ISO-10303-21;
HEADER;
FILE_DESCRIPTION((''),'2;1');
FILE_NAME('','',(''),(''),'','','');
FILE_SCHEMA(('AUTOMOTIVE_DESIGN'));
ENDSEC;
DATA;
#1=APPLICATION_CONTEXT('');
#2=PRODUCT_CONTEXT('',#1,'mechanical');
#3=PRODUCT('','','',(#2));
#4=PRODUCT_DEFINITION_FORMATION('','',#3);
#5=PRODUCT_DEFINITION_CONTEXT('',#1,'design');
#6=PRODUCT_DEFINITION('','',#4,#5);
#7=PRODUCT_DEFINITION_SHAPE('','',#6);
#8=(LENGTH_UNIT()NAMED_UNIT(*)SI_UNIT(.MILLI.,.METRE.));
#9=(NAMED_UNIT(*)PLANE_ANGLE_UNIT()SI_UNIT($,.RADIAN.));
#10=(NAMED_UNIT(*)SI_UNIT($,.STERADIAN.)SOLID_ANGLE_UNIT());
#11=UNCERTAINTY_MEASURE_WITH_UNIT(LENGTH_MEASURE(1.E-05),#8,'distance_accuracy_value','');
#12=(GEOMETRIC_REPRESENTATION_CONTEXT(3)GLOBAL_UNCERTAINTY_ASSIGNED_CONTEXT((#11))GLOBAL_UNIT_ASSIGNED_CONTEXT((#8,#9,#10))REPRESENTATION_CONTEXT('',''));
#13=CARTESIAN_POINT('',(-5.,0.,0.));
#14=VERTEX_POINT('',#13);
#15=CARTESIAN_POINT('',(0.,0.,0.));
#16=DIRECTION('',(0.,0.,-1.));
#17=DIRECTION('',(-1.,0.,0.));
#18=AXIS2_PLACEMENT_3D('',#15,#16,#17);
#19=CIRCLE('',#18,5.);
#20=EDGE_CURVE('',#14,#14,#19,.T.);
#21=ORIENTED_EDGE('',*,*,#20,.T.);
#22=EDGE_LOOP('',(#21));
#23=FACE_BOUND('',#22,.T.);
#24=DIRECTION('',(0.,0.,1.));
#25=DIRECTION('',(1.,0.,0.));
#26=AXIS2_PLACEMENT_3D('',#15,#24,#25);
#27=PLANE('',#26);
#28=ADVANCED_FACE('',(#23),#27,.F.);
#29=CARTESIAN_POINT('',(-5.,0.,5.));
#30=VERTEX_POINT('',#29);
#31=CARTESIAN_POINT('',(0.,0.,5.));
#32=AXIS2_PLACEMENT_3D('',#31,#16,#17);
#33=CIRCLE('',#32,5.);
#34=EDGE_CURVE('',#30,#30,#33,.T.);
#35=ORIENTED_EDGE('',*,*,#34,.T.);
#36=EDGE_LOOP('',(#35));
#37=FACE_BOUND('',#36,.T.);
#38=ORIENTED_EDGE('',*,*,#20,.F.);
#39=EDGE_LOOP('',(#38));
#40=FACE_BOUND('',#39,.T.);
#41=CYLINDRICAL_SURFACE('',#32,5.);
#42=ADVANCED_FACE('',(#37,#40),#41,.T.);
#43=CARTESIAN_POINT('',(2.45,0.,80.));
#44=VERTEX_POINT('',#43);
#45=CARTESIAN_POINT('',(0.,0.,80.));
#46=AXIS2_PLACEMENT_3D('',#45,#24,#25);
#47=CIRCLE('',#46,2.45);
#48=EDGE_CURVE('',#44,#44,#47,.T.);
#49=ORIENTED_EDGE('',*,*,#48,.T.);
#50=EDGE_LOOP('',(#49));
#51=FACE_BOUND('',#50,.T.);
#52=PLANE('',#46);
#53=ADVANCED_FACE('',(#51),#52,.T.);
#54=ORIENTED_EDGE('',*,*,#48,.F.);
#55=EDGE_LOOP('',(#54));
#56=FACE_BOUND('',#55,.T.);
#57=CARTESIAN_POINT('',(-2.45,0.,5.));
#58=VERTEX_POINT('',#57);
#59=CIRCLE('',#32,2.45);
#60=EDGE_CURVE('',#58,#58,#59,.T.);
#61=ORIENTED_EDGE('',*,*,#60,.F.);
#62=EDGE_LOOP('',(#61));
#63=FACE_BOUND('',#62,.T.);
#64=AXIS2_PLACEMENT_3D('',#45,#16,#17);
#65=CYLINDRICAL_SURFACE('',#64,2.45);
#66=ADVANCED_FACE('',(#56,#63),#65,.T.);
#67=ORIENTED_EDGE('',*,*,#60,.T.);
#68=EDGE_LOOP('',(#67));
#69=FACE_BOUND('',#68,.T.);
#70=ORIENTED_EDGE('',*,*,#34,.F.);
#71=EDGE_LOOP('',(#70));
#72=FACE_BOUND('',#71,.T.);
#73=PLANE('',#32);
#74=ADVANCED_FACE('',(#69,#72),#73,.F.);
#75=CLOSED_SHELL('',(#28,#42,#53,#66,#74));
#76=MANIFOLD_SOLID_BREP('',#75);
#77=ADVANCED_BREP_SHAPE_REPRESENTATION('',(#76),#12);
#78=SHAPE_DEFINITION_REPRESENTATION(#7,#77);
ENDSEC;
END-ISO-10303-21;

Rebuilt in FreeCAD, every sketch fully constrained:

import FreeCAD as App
import Part
import Sketcher
Q = App.Units.Quantity

doc = App.newDocument("Part")
body = doc.addObject("PartDesign::Body", "Body")

sketch1 = body.newObject("Sketcher::SketchObject", "Sketch")
sketch1.AttachmentSupport = (doc.getObject("XY_Plane"), [""])
sketch1.MapMode = "FlatFace"
sketch1.addGeometry(Part.Circle(App.Vector(0, 0, 0), App.Vector(0, 0, 1), 2.45), False)
sketch1.addConstraint(Sketcher.Constraint("Coincident", 0, 3, -1, 1))
sketch1.addConstraint(Sketcher.Constraint("Diameter", 0, Q("4.9 mm")))
pad1 = body.newObject("PartDesign::Pad", "Pad")
pad1.Profile = sketch1
pad1.Length = 80

sketch2 = body.newObject("Sketcher::SketchObject", "Sketch001")
sketch2.AttachmentSupport = (doc.getObject("XY_Plane"), [""])
sketch2.MapMode = "FlatFace"
sketch2.addGeometry(Part.Circle(App.Vector(0, 0, 0), App.Vector(0, 0, 1), 5), False)
sketch2.addConstraint(Sketcher.Constraint("Coincident", 0, 3, -1, 1))
sketch2.addConstraint(Sketcher.Constraint("Diameter", 0, Q("10 mm")))
pad2 = body.newObject("PartDesign::Pad", "Pad001")
pad2.Profile = sketch2
pad2.Length = 5

doc.recompute()
